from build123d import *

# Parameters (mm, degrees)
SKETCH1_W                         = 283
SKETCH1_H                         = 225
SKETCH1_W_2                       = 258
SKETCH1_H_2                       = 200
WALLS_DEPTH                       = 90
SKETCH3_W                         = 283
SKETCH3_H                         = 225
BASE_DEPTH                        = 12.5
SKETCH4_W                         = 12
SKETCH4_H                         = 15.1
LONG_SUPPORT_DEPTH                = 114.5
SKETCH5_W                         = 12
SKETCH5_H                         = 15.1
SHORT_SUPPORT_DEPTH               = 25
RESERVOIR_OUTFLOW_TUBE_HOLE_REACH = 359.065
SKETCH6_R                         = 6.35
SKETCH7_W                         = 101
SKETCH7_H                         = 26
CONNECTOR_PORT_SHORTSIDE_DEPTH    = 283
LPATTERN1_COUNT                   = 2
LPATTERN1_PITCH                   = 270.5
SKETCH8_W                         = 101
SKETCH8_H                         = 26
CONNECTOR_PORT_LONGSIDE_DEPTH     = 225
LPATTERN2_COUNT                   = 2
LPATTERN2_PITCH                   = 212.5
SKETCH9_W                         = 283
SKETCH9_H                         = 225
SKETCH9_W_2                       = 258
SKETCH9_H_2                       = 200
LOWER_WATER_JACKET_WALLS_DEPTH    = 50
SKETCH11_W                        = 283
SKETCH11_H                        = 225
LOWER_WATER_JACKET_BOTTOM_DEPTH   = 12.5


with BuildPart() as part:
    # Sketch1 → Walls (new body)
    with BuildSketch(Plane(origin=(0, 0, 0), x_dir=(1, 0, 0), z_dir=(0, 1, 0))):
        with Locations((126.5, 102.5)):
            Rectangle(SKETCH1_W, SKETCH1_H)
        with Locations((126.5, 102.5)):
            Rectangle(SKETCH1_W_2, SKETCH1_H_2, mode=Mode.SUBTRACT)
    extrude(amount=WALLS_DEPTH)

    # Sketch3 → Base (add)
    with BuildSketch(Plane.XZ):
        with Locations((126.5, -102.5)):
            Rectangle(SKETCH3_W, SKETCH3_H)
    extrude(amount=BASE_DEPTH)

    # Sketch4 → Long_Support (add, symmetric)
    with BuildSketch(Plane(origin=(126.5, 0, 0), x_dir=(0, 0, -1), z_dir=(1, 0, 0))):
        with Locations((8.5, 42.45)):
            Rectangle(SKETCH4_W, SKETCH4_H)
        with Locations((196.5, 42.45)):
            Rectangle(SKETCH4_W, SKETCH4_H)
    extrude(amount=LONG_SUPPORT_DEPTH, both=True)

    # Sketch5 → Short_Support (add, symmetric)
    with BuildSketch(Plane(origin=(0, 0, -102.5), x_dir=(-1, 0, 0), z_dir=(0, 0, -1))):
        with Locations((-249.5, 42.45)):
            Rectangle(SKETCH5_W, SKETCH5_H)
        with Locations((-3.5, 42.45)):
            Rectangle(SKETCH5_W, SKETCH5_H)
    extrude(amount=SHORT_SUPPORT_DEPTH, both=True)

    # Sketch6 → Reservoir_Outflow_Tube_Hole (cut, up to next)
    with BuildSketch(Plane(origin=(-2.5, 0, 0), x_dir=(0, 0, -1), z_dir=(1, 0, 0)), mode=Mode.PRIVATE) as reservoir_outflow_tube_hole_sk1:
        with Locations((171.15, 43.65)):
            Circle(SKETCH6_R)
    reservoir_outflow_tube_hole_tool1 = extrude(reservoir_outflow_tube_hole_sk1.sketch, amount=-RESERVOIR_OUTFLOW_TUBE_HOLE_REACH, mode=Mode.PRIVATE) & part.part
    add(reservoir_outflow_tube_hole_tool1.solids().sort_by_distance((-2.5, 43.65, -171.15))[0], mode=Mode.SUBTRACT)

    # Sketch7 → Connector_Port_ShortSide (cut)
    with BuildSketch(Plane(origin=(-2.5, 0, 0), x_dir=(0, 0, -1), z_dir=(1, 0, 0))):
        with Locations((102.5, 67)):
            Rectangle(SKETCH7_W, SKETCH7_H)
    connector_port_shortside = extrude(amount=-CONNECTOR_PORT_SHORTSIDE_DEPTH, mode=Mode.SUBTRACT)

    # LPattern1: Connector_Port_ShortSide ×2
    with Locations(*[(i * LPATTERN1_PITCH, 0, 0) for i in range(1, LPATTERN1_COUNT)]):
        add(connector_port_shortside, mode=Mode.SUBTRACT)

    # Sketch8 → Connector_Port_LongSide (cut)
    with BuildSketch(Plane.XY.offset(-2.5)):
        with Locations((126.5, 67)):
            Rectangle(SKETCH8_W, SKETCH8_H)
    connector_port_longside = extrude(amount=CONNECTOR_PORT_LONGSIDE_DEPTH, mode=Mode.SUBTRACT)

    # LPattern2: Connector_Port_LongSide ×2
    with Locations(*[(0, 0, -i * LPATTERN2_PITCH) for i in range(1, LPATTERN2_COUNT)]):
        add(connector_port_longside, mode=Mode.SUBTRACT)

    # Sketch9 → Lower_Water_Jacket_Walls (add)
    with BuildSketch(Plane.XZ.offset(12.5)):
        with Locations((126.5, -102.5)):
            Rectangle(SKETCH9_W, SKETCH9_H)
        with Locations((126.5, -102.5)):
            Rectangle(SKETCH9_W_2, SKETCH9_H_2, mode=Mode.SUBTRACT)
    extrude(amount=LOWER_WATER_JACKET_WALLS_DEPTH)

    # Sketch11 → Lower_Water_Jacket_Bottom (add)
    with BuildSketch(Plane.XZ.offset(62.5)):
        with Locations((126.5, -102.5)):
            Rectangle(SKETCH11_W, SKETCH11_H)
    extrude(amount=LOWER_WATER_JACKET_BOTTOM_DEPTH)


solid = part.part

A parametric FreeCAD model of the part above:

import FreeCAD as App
import Part
import Sketcher

V = App.Vector
Q = App.Units.Quantity


def add_polygon(sketch, points):
    """Adds a closed chain of lines whose ends are joined by coincident constraints."""
    first, n = sketch.GeometryCount, len(points)
    for a, b in zip(points, points[1:] + points[:1]):
        sketch.addGeometry(Part.LineSegment(App.Vector(*a, 0), App.Vector(*b, 0)), False)
    for i in range(n):
        sketch.addConstraint(Sketcher.Constraint("Coincident", first + i, 2, first + (i + 1) % n, 1))

doc = App.newDocument("Part")
body = doc.addObject("PartDesign::Body", "Body")

# Sketch on XZ plane
sketch1 = body.newObject("Sketcher::SketchObject", "Sketch")
sketch1.AttachmentSupport = (doc.getObject("XZ_Plane"), [""])
sketch1.MapMode = "FlatFace"
add_polygon(sketch1, [(-15, -215), (-15, 10), (268, 10), (268, -215)])  # lines 0-3
add_polygon(sketch1, [(255.5, -2.5), (-2.5, -2.5), (-2.5, -202.5), (255.5, -202.5)])  # lines 4-7
sketch1.addConstraint([
    Sketcher.Constraint("Vertical", 0),
    Sketcher.Constraint("Horizontal", 1),
    Sketcher.Constraint("Vertical", 2),
    Sketcher.Constraint("Horizontal", 3),
    Sketcher.Constraint("Horizontal", 4),
    Sketcher.Constraint("Vertical", 5),
    Sketcher.Constraint("Horizontal", 6),
    Sketcher.Constraint("Vertical", 7),
    Sketcher.Constraint("DistanceX", 1, 1, 1, 2, Q("283 mm")),
    Sketcher.Constraint("DistanceX", 4, 2, 4, 1, Q("258 mm")),
    Sketcher.Constraint("DistanceY", 0, 1, 0, 2, Q("225 mm")),
    Sketcher.Constraint("DistanceY", 5, 2, 5, 1, Q("200 mm")),
    Sketcher.Constraint("DistanceX", 0, 2, -1, 1, Q("15 mm")),
    Sketcher.Constraint("DistanceY", -1, 1, 0, 2, Q("10 mm")),
    Sketcher.Constraint("DistanceX", 4, 2, -1, 1, Q("2.5 mm")),
    Sketcher.Constraint("DistanceY", 4, 2, -1, 1, Q("2.5 mm")),
])
pad1 = body.newObject("PartDesign::Pad", "Pad")
pad1.Profile = sketch1
pad1.Length = 90
pad1.Reversed = True

# Sketch on XZ plane
sketch2 = body.newObject("Sketcher::SketchObject", "Sketch001")
sketch2.AttachmentSupport = (doc.getObject("XZ_Plane"), [""])
sketch2.MapMode = "FlatFace"
add_polygon(sketch2, [(-15, 10), (-15, -215), (268, -215), (268, 10)])  # lines 0-3
sketch2.addConstraint([
    Sketcher.Constraint("Vertical", 0),
    Sketcher.Constraint("Horizontal", 1),
    Sketcher.Constraint("Vertical", 2),
    Sketcher.Constraint("Horizontal", 3),
    Sketcher.Constraint("DistanceX", 1, 1, 1, 2, Q("283 mm")),
    Sketcher.Constraint("DistanceY", 0, 2, 0, 1, Q("225 mm")),
    Sketcher.Constraint("DistanceX", 0, 2, -1, 1, Q("15 mm")),
    Sketcher.Constraint("DistanceY", 0, 2, -1, 1, Q("215 mm")),
])
pad2 = body.newObject("PartDesign::Pad", "Pad001")
pad2.Profile = sketch2
pad2.Length = 12.5

# Sketch on YZ plane
sketch3 = body.newObject("Sketcher::SketchObject", "Sketch002")
sketch3.AttachmentSupport = (doc.getObject("YZ_Plane"), [""])
sketch3.MapMode = "FlatFace"
sketch3.AttachmentOffset = App.Placement(V(0, 0, 126.5), App.Rotation())
add_polygon(sketch3, [(50, -2.5), (34.9, -2.5), (34.9, -14.5), (50, -14.5)])  # lines 0-3
add_polygon(sketch3, [(50, -190.5), (34.9, -190.5), (34.9, -202.5), (50, -202.5)])  # lines 4-7
sketch3.addConstraint([
    Sketcher.Constraint("Horizontal", 0),
    Sketcher.Constraint("Vertical", 1),
    Sketcher.Constraint("Horizontal", 2),
    Sketcher.Constraint("Vertical", 3),
    Sketcher.Constraint("Horizontal", 4),
    Sketcher.Constraint("Vertical", 5),
    Sketcher.Constraint("Horizontal", 6),
    Sketcher.Constraint("Vertical", 7),
    Sketcher.Constraint("Vertical", 1, 2, 4, 2),
    Sketcher.Constraint("Vertical", 3, 2, 6, 2),
    Sketcher.Constraint("Equal", 3, 5),
    Sketcher.Constraint("DistanceY", 1, 2, 1, 1, Q("12 mm")),
    Sketcher.Constraint("DistanceX", 0, 2, 0, 1, Q("15.1 mm")),
    Sketcher.Constraint("DistanceX", -1, 1, 2, 2, Q("50 mm")),
    Sketcher.Constraint("DistanceY", 4, 2, 1, 2, Q("176 mm")),
    Sketcher.Constraint("DistanceY", 0, 2, -1, 1, Q("2.5 mm")),
])
pad3 = body.newObject("PartDesign::Pad", "Pad002")
pad3.Profile = sketch3
pad3.Length = 229
pad3.Midplane = True

# Sketch on XY plane
sketch4 = body.newObject("Sketcher::SketchObject", "Sketch003")
sketch4.AttachmentSupport = (doc.getObject("XY_Plane"), [""])
sketch4.MapMode = "FlatFace"
sketch4.AttachmentOffset = App.Placement(V(0, 0, -102.5), App.Rotation())
add_polygon(sketch4, [(255.5, 50), (255.5, 34.9), (243.5, 34.9), (243.5, 50)])  # lines 0-3
add_polygon(sketch4, [(9.5, 50), (9.5, 34.9), (-2.5, 34.9), (-2.5, 50)])  # lines 4-7
sketch4.addConstraint([
    Sketcher.Constraint("Vertical", 0),
    Sketcher.Constraint("Horizontal", 1),
    Sketcher.Constraint("Vertical", 2),
    Sketcher.Constraint("Horizontal", 3),
    Sketcher.Constraint("Vertical", 4),
    Sketcher.Constraint("Horizontal", 5),
    Sketcher.Constraint("Vertical", 6),
    Sketcher.Constraint("Horizontal", 7),
    Sketcher.Constraint("Horizontal", 1, 2, 4, 2),
    Sketcher.Constraint("Horizontal", 3, 2, 6, 2),
    Sketcher.Constraint("Equal", 3, 5),
    Sketcher.Constraint("DistanceX", 1, 2, 1, 1, Q("12 mm")),
    Sketcher.Constraint("DistanceY", 0, 2, 0, 1, Q("15.1 mm")),
    Sketcher.Constraint("DistanceY", -1, 1, 2, 2, Q("50 mm")),
    Sketcher.Constraint("DistanceX", 4, 2, 1, 2, Q("234 mm")),
    Sketcher.Constraint("DistanceX", -1, 1, 0, 2, Q("255.5 mm")),
])
pad4 = body.newObject("PartDesign::Pad", "Pad003")
pad4.Profile = sketch4
pad4.Length = 50
pad4.Midplane = True

# Sketch on YZ plane
sketch5 = body.newObject("Sketcher::SketchObject", "Sketch004")
sketch5.AttachmentSupport = (doc.getObject("YZ_Plane"), [""])
sketch5.MapMode = "FlatFace"
sketch5.AttachmentOffset = App.Placement(V(0, 0, -2.5), App.Rotation())
sketch5.addGeometry(Part.Circle(V(43.65, -171.15, 0), V(0, 0, 1), 6.35), False)
sketch5.addConstraint([
    Sketcher.Constraint("Diameter", 0, Q("12.7 mm")),
    Sketcher.Constraint("DistanceX", -1, 1, 0, 3, Q("43.65 mm")),
    Sketcher.Constraint("DistanceY", 0, 3, -1, 1, Q("171.15 mm")),
])
pocket1 = body.newObject("PartDesign::Pocket", "Pocket")
pocket1.Profile = sketch5
pocket1.Type = "UpToFirst"

# Sketch on YZ plane
sketch6 = body.newObject("Sketcher::SketchObject", "Sketch005")
sketch6.AttachmentSupport = (doc.getObject("YZ_Plane"), [""])
sketch6.MapMode = "FlatFace"
sketch6.AttachmentOffset = App.Placement(V(0, 0, -2.5), App.Rotation())
add_polygon(sketch6, [(80, -52), (54, -52), (54, -153), (80, -153)])  # lines 0-3
sketch6.addConstraint([
    Sketcher.Constraint("Horizontal", 0),
    Sketcher.Constraint("Vertical", 1),
    Sketcher.Constraint("Horizontal", 2),
    Sketcher.Constraint("Vertical", 3),
    Sketcher.Constraint("DistanceX", 0, 2, 0, 1, Q("26 mm")),
    Sketcher.Constraint("DistanceY", 1, 2, 1, 1, Q("101 mm")),
    Sketcher.Constraint("DistanceX", -1, 1, 0, 2, Q("54 mm")),
    Sketcher.Constraint("DistanceY", 0, 2, -1, 1, Q("52 mm")),
])
pocket2 = body.newObject("PartDesign::Pocket", "Pocket001")
pocket2.Profile = sketch6
pocket2.Length = 283
doc.recompute()

linearpattern = body.newObject("PartDesign::LinearPattern", "LinearPattern")
linearpattern.Originals = [pocket2]
linearpattern.Direction = (doc.getObject("X_Axis"), [""])
linearpattern.Mode = "offset"
linearpattern.Offset = 270.5
linearpattern.Occurrences = 2
body.Tip = linearpattern

# Sketch on XY plane
sketch7 = body.newObject("Sketcher::SketchObject", "Sketch006")
sketch7.AttachmentSupport = (doc.getObject("XY_Plane"), [""])
sketch7.MapMode = "FlatFace"
sketch7.AttachmentOffset = App.Placement(V(0, 0, -2.5), App.Rotation())
add_polygon(sketch7, [(76, 80), (76, 54), (177, 54), (177, 80)])  # lines 0-3
sketch7.addConstraint([
    Sketcher.Constraint("Vertical", 0),
    Sketcher.Constraint("Horizontal", 1),
    Sketcher.Constraint("Vertical", 2),
    Sketcher.Constraint("Horizontal", 3),
    Sketcher.Constraint("DistanceX", 1, 1, 1, 2, Q("101 mm")),
    Sketcher.Constraint("DistanceY", 0, 2, 0, 1, Q("26 mm")),
    Sketcher.Constraint("DistanceX", -1, 1, 0, 2, Q("76 mm")),
    Sketcher.Constraint("DistanceY", -1, 1, 0, 2, Q("54 mm")),
])
pocket3 = body.newObject("PartDesign::Pocket", "Pocket002")
pocket3.Profile = sketch7
pocket3.Length = 225
pocket3.Reversed = True
doc.recompute()

linearpattern2 = body.newObject("PartDesign::LinearPattern", "LinearPattern001")
linearpattern2.Originals = [pocket3]
linearpattern2.Direction = (doc.getObject("Z_Axis"), [""])
linearpattern2.Mode = "offset"
linearpattern2.Offset = 212.5
linearpattern2.Occurrences = 2
linearpattern2.Reversed = True
body.Tip = linearpattern2

# Sketch on XZ plane
sketch8 = body.newObject("Sketcher::SketchObject", "Sketch007")
sketch8.AttachmentSupport = (doc.getObject("XZ_Plane"), [""])
sketch8.MapMode = "FlatFace"
sketch8.AttachmentOffset = App.Placement(V(0, 0, 12.5), App.Rotation())
add_polygon(sketch8, [(-15, 10), (-15, -215), (268, -215), (268, 10)])  # lines 0-3
add_polygon(sketch8, [(255.5, -202.5), (-2.5, -202.5), (-2.5, -2.5), (255.5, -2.5)])  # lines 4-7
sketch8.addConstraint([
    Sketcher.Constraint("Vertical", 0),
    Sketcher.Constraint("Horizontal", 1),
    Sketcher.Constraint("Vertical", 2),
    Sketcher.Constraint("Horizontal", 3),
    Sketcher.Constraint("Horizontal", 4),
    Sketcher.Constraint("Vertical", 5),
    Sketcher.Constraint("Horizontal", 6),
    Sketcher.Constraint("Vertical", 7),
    Sketcher.Constraint("DistanceX", 1, 1, 1, 2, Q("283 mm")),
    Sketcher.Constraint("DistanceX", 4, 2, 4, 1, Q("258 mm")),
    Sketcher.Constraint("DistanceY", 0, 2, 0, 1, Q("225 mm")),
    Sketcher.Constraint("DistanceY", 5, 1, 5, 2, Q("200 mm")),
    Sketcher.Constraint("DistanceX", 0, 2, -1, 1, Q("15 mm")),
    Sketcher.Constraint("DistanceY", 0, 2, -1, 1, Q("215 mm")),
    Sketcher.Constraint("DistanceX", 4, 2, -1, 1, Q("2.5 mm")),
    Sketcher.Constraint("DistanceY", 4, 2, -1, 1, Q("202.5 mm")),
])
pad5 = body.newObject("PartDesign::Pad", "Pad004")
pad5.Profile = sketch8
pad5.Length = 50

# Sketch on XZ plane
sketch9 = body.newObject("Sketcher::SketchObject", "Sketch008")
sketch9.AttachmentSupport = (doc.getObject("XZ_Plane"), [""])
sketch9.MapMode = "FlatFace"
sketch9.AttachmentOffset = App.Placement(V(0, 0, 62.5), App.Rotation())
add_polygon(sketch9, [(-15, 10), (-15, -215), (268, -215), (268, 10)])  # lines 0-3
sketch9.addConstraint([
    Sketcher.Constraint("Vertical", 0),
    Sketcher.Constraint("Horizontal", 1),
    Sketcher.Constraint("Vertical", 2),
    Sketcher.Constraint("Horizontal", 3),
    Sketcher.Constraint("DistanceX", 1, 1, 1, 2, Q("283 mm")),
    Sketcher.Constraint("DistanceY", 0, 2, 0, 1, Q("225 mm")),
    Sketcher.Constraint("DistanceX", 0, 2, -1, 1, Q("15 mm")),
    Sketcher.Constraint("DistanceY", 0, 2, -1, 1, Q("215 mm")),
])
pad6 = body.newObject("PartDesign::Pad", "Pad005")
pad6.Profile = sketch9
pad6.Length = 12.5

doc.recompute()
